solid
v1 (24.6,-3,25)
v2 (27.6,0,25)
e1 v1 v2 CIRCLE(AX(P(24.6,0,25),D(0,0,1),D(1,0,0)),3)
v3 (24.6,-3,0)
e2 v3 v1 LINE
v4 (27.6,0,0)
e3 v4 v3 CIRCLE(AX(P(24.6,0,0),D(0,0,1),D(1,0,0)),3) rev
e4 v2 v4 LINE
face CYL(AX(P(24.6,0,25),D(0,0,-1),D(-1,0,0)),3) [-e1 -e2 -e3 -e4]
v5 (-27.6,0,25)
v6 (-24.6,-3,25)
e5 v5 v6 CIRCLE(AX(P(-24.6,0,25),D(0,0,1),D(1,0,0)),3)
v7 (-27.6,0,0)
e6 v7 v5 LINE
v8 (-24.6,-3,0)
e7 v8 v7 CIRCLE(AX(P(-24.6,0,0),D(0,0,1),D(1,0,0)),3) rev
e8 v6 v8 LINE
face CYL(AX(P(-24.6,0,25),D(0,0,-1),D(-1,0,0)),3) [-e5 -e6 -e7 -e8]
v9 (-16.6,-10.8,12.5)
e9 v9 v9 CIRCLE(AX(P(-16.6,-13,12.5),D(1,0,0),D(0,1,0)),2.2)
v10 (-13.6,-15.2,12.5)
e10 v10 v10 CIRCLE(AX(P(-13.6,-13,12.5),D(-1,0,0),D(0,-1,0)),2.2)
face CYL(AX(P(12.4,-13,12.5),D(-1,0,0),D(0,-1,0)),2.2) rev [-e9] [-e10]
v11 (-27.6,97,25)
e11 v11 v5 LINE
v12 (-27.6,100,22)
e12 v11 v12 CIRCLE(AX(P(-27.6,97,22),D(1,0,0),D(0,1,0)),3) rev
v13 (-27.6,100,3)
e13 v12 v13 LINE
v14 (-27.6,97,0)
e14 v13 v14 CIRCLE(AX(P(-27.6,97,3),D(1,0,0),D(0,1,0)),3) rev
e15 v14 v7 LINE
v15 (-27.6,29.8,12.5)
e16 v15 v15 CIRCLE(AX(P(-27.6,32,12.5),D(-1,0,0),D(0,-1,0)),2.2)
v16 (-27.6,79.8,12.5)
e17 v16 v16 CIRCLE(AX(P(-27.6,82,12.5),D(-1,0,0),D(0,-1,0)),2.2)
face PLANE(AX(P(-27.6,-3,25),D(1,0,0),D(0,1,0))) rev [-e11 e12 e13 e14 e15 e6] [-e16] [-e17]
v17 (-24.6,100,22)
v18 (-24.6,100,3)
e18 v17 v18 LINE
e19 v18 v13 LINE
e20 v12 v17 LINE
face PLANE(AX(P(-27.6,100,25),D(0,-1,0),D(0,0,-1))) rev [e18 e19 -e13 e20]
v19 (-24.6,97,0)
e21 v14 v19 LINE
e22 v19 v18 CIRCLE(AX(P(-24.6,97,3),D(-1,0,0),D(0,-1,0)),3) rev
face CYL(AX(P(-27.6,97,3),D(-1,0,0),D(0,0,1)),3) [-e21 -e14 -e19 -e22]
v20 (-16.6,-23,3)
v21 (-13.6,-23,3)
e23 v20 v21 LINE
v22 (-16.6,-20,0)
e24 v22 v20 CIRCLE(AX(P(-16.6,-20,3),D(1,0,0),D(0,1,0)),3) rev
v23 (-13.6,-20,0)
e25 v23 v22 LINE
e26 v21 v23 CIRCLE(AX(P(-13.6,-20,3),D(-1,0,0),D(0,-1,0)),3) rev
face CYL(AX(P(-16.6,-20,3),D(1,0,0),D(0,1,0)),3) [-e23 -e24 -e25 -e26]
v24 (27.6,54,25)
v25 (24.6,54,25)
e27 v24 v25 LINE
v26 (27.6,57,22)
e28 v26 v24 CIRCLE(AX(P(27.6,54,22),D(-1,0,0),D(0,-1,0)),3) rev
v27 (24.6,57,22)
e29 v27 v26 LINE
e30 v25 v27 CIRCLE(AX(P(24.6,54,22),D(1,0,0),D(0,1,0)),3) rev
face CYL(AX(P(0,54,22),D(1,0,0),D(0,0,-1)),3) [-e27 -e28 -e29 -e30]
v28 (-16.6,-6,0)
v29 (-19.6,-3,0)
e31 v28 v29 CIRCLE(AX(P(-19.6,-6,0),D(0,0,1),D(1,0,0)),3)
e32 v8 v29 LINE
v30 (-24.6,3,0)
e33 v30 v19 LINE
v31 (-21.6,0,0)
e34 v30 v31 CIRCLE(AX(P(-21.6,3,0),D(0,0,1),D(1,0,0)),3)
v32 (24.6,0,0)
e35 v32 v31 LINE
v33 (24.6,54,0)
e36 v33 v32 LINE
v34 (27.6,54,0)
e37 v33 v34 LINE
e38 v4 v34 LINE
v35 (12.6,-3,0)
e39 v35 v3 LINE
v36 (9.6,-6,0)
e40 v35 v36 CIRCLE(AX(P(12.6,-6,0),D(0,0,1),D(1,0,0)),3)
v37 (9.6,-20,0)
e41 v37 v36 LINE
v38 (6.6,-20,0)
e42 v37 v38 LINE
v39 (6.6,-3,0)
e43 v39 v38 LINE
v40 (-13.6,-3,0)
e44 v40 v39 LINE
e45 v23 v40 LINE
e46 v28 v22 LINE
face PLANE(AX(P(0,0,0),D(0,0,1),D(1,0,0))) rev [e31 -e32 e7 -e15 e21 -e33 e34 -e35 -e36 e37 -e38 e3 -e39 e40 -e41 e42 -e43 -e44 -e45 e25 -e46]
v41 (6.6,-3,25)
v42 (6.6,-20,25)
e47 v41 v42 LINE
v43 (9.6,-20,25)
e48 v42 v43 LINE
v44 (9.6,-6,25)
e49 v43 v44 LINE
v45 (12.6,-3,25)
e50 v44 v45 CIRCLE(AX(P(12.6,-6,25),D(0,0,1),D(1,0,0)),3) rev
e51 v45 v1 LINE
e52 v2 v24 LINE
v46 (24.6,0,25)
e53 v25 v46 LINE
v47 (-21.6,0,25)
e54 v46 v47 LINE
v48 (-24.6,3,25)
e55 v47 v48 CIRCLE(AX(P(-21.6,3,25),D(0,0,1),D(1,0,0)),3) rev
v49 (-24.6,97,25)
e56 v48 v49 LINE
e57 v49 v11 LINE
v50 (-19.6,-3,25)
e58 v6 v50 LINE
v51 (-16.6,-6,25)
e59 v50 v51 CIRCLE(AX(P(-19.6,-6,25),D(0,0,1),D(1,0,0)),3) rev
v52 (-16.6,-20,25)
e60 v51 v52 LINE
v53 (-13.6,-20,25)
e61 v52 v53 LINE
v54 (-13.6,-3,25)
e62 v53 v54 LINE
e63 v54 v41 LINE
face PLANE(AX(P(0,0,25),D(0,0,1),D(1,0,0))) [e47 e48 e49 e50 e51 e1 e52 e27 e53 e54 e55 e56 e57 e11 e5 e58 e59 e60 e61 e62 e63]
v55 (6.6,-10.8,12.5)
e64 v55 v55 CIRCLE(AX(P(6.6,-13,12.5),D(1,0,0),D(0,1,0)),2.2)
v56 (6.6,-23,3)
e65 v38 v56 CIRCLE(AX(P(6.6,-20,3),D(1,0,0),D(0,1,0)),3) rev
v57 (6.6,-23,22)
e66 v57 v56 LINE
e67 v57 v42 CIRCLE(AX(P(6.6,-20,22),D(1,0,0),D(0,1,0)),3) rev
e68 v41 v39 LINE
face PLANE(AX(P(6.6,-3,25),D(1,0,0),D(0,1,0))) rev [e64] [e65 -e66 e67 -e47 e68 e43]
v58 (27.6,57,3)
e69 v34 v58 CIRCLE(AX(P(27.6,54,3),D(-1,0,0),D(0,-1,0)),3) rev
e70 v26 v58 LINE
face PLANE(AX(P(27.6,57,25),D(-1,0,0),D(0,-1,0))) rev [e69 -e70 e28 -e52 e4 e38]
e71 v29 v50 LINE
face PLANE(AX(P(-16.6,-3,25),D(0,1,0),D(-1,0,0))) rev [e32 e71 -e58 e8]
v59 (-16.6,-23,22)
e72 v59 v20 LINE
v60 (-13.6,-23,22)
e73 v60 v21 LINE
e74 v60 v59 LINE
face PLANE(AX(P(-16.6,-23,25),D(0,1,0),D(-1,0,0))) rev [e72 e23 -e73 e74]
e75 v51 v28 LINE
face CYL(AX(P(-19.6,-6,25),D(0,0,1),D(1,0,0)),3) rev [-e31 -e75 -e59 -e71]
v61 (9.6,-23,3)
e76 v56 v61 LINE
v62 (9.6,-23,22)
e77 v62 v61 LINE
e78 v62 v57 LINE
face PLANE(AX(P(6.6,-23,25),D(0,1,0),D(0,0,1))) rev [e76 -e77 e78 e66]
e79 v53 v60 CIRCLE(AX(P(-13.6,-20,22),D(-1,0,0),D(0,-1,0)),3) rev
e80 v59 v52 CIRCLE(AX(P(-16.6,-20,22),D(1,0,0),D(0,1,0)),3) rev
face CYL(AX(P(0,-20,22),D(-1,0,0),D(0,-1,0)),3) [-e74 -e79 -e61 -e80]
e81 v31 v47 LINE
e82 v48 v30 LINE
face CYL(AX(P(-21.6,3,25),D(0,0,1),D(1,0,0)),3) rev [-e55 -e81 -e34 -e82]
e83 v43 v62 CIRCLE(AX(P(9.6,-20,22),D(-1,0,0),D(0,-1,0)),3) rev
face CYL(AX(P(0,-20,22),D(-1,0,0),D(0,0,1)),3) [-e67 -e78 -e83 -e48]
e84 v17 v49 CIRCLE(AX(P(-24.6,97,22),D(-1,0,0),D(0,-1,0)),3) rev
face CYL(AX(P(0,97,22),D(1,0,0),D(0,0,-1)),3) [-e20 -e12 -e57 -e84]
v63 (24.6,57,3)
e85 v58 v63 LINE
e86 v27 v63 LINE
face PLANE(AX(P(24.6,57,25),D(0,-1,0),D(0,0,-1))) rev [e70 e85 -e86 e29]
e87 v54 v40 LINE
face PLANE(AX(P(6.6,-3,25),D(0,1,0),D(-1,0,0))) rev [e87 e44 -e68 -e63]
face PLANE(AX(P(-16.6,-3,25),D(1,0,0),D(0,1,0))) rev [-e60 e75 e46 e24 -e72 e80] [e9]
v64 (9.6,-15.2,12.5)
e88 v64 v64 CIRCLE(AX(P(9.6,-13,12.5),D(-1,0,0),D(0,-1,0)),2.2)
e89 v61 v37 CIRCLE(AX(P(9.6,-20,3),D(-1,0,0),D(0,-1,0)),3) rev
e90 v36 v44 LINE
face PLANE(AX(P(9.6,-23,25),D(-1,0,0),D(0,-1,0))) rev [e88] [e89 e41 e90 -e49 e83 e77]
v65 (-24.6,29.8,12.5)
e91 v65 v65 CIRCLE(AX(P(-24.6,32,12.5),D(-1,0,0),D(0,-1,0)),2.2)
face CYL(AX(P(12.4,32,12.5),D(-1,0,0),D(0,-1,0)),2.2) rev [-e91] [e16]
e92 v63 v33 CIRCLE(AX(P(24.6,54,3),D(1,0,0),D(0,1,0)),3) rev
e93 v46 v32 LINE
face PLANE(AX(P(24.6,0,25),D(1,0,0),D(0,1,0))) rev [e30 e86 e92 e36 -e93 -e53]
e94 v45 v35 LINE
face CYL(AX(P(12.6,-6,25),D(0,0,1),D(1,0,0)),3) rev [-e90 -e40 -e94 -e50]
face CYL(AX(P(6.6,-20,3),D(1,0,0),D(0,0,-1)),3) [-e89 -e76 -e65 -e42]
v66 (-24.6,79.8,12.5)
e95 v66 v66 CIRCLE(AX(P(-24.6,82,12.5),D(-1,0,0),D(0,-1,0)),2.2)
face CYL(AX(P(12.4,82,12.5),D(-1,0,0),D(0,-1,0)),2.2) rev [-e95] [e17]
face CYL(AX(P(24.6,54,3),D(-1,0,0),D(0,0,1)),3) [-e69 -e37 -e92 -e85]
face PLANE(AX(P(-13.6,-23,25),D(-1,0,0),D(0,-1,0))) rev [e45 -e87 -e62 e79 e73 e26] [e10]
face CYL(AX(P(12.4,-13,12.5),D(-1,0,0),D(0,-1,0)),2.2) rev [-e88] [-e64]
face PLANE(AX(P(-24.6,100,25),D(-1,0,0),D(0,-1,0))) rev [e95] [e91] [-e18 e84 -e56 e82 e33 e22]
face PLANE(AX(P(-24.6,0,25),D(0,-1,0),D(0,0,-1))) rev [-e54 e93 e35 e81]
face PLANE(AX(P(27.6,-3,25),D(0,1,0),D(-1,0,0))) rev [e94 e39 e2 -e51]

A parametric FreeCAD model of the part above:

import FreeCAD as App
import Part
import Sketcher

V = App.Vector


def edges_at(feature, points):
    """Names of the edges that pass closest to the given points."""
    edges = feature.Shape.Edges
    near = lambda p: min(range(len(edges)), key=lambda i: edges[i].distToShape(Part.Vertex(*p))[0])
    return sorted({f"Edge{near(p) + 1}" for p in points})


def add_polygon(sketch, points):
    """Adds a closed chain of lines whose ends are joined by coincident constraints."""
    first, n = sketch.GeometryCount, len(points)
    for a, b in zip(points, points[1:] + points[:1]):
        sketch.addGeometry(Part.LineSegment(App.Vector(*a, 0), App.Vector(*b, 0)), False)
    for i in range(n):
        sketch.addConstraint(Sketcher.Constraint("Coincident", first + i, 2, first + (i + 1) % n, 1))

doc = App.newDocument("Part")
body = doc.addObject("PartDesign::Body", "Body")

# Sketch on XY plane
sketch1 = body.newObject("Sketcher::SketchObject", "Sketch")
sketch1.AttachmentSupport = (doc.getObject("XY_Plane"), [""])
sketch1.MapMode = "FlatFace"
add_polygon(sketch1, [(24.6, 0), (-24.6, 0), (-24.6, 100), (-27.6, 100), (-27.6, -3), (-16.6, -3), (-16.6, -23), (-13.6, -23), (-13.6, -3), (6.6, -3), (6.6, -23), (9.6, -23), (9.6, -3), (27.6, -3), (27.6, 57), (24.6, 57)])  # lines 0-15
sketch1.addConstraint([
    Sketcher.Constraint("Horizontal", 0),
    Sketcher.Constraint("Vertical", 1),
    Sketcher.Constraint("Horizontal", 2),
    Sketcher.Constraint("Vertical", 3),
    Sketcher.Constraint("Horizontal", 4),
    Sketcher.Constraint("Vertical", 5),
    Sketcher.Constraint("Horizontal", 6),
    Sketcher.Constraint("Vertical", 7),
    Sketcher.Constraint("Horizontal", 8),
    Sketcher.Constraint("Vertical", 9),
    Sketcher.Constraint("Horizontal", 10),
    Sketcher.Constraint("Vertical", 11),
    Sketcher.Constraint("Horizontal", 12),
    Sketcher.Constraint("Vertical", 13),
    Sketcher.Constraint("Horizontal", 14),
    Sketcher.Constraint("Vertical", 15),
    Sketcher.Constraint("Symmetric", 0, 2, 15, 2, -1, 1),
    Sketcher.Constraint("Symmetric", 3, 2, 12, 2, -2),
    Sketcher.Constraint("Horizontal", 4, 2, 7, 2),
    Sketcher.Constraint("Horizontal", 6, 2, 9, 2),
    Sketcher.Constraint("Equal", 2, 6),
    Sketcher.Constraint("Equal", 6, 10),
    Sketcher.Constraint("DistanceX", 2, 2, 2, 1, 3.0),
    Sketcher.Constraint("DistanceX", 4, 1, 4, 2, 11.0),
    Sketcher.Constraint("DistanceX", 12, 1, 12, 2, 18.0),
    Sketcher.Constraint("DistanceY", 1, 1, 1, 2, 100.0),
    Sketcher.Constraint("DistanceY", 3, 2, 3, 1, 103.0),
    Sketcher.Constraint("DistanceY", 5, 2, 5, 1, 20.0),
    Sketcher.Constraint("DistanceY", 13, 1, 13, 2, 60.0),
    Sketcher.Constraint("DistanceX", 0, 2, 0, 1, 49.2),
])
pad1 = body.newObject("PartDesign::Pad", "Pad")
pad1.Profile = sketch1
pad1.Length = 25
doc.recompute()

fillet = body.newObject("PartDesign::Fillet", "Fillet")
fillet.Base = (pad1, edges_at(pad1, [
    (26.1, 57, 0),
    (8.1, -23, 0),
    (-15.1, -23, 0),
    (-15.1, -23, 25),
    (-26.1, 100, 0),
    (-24.6, 0, 12.5),
    (27.6, -3, 12.5),
    (9.6, -3, 12.5),
    (-16.6, -3, 12.5),
    (-27.6, -3, 12.5),
    (8.1, -23, 25),
    (26.1, 57, 25),
    (-26.1, 100, 25),
]))
fillet.Radius = 3

# Sketch on YZ plane
sketch2 = body.newObject("Sketcher::SketchObject", "Sketch001")
sketch2.AttachmentSupport = (doc.getObject("YZ_Plane"), [""])
sketch2.MapMode = "FlatFace"
sketch2.AttachmentOffset = App.Placement(V(0, 0, -27.6), App.Rotation())
sketch2.addGeometry([
    Part.Circle(V(82, 12.5, 0), V(0, 0, 1), 2.2),
    Part.Circle(V(32, 12.5, 0), V(0, 0, 1), 2.2),
    Part.Circle(V(-13, 12.5, 0), V(0, 0, 1), 2.2),
], False)
sketch2.addConstraint([
    Sketcher.Constraint("Equal", 0, 1),
    Sketcher.Constraint("Equal", 1, 2),
    Sketcher.Constraint("Horizontal", 0, 3, 1, 3),
    Sketcher.Constraint("Horizontal", 1, 3, 2, 3),
    Sketcher.Constraint("Diameter", 0, 4.4),
    Sketcher.Constraint("DistanceX", -1, 1, 0, 3, 82.0),
    Sketcher.Constraint("DistanceX", -1, 1, 1, 3, 32.0),
    Sketcher.Constraint("DistanceX", 2, 3, -1, 1, 13.0),
    Sketcher.Constraint("DistanceY", -1, 1, 0, 3, 12.5),
])
pocket1 = body.newObject("PartDesign::Pocket", "Pocket")
pocket1.Profile = sketch2
pocket1.Length = 40
pocket1.Reversed = True

doc.recompute()
